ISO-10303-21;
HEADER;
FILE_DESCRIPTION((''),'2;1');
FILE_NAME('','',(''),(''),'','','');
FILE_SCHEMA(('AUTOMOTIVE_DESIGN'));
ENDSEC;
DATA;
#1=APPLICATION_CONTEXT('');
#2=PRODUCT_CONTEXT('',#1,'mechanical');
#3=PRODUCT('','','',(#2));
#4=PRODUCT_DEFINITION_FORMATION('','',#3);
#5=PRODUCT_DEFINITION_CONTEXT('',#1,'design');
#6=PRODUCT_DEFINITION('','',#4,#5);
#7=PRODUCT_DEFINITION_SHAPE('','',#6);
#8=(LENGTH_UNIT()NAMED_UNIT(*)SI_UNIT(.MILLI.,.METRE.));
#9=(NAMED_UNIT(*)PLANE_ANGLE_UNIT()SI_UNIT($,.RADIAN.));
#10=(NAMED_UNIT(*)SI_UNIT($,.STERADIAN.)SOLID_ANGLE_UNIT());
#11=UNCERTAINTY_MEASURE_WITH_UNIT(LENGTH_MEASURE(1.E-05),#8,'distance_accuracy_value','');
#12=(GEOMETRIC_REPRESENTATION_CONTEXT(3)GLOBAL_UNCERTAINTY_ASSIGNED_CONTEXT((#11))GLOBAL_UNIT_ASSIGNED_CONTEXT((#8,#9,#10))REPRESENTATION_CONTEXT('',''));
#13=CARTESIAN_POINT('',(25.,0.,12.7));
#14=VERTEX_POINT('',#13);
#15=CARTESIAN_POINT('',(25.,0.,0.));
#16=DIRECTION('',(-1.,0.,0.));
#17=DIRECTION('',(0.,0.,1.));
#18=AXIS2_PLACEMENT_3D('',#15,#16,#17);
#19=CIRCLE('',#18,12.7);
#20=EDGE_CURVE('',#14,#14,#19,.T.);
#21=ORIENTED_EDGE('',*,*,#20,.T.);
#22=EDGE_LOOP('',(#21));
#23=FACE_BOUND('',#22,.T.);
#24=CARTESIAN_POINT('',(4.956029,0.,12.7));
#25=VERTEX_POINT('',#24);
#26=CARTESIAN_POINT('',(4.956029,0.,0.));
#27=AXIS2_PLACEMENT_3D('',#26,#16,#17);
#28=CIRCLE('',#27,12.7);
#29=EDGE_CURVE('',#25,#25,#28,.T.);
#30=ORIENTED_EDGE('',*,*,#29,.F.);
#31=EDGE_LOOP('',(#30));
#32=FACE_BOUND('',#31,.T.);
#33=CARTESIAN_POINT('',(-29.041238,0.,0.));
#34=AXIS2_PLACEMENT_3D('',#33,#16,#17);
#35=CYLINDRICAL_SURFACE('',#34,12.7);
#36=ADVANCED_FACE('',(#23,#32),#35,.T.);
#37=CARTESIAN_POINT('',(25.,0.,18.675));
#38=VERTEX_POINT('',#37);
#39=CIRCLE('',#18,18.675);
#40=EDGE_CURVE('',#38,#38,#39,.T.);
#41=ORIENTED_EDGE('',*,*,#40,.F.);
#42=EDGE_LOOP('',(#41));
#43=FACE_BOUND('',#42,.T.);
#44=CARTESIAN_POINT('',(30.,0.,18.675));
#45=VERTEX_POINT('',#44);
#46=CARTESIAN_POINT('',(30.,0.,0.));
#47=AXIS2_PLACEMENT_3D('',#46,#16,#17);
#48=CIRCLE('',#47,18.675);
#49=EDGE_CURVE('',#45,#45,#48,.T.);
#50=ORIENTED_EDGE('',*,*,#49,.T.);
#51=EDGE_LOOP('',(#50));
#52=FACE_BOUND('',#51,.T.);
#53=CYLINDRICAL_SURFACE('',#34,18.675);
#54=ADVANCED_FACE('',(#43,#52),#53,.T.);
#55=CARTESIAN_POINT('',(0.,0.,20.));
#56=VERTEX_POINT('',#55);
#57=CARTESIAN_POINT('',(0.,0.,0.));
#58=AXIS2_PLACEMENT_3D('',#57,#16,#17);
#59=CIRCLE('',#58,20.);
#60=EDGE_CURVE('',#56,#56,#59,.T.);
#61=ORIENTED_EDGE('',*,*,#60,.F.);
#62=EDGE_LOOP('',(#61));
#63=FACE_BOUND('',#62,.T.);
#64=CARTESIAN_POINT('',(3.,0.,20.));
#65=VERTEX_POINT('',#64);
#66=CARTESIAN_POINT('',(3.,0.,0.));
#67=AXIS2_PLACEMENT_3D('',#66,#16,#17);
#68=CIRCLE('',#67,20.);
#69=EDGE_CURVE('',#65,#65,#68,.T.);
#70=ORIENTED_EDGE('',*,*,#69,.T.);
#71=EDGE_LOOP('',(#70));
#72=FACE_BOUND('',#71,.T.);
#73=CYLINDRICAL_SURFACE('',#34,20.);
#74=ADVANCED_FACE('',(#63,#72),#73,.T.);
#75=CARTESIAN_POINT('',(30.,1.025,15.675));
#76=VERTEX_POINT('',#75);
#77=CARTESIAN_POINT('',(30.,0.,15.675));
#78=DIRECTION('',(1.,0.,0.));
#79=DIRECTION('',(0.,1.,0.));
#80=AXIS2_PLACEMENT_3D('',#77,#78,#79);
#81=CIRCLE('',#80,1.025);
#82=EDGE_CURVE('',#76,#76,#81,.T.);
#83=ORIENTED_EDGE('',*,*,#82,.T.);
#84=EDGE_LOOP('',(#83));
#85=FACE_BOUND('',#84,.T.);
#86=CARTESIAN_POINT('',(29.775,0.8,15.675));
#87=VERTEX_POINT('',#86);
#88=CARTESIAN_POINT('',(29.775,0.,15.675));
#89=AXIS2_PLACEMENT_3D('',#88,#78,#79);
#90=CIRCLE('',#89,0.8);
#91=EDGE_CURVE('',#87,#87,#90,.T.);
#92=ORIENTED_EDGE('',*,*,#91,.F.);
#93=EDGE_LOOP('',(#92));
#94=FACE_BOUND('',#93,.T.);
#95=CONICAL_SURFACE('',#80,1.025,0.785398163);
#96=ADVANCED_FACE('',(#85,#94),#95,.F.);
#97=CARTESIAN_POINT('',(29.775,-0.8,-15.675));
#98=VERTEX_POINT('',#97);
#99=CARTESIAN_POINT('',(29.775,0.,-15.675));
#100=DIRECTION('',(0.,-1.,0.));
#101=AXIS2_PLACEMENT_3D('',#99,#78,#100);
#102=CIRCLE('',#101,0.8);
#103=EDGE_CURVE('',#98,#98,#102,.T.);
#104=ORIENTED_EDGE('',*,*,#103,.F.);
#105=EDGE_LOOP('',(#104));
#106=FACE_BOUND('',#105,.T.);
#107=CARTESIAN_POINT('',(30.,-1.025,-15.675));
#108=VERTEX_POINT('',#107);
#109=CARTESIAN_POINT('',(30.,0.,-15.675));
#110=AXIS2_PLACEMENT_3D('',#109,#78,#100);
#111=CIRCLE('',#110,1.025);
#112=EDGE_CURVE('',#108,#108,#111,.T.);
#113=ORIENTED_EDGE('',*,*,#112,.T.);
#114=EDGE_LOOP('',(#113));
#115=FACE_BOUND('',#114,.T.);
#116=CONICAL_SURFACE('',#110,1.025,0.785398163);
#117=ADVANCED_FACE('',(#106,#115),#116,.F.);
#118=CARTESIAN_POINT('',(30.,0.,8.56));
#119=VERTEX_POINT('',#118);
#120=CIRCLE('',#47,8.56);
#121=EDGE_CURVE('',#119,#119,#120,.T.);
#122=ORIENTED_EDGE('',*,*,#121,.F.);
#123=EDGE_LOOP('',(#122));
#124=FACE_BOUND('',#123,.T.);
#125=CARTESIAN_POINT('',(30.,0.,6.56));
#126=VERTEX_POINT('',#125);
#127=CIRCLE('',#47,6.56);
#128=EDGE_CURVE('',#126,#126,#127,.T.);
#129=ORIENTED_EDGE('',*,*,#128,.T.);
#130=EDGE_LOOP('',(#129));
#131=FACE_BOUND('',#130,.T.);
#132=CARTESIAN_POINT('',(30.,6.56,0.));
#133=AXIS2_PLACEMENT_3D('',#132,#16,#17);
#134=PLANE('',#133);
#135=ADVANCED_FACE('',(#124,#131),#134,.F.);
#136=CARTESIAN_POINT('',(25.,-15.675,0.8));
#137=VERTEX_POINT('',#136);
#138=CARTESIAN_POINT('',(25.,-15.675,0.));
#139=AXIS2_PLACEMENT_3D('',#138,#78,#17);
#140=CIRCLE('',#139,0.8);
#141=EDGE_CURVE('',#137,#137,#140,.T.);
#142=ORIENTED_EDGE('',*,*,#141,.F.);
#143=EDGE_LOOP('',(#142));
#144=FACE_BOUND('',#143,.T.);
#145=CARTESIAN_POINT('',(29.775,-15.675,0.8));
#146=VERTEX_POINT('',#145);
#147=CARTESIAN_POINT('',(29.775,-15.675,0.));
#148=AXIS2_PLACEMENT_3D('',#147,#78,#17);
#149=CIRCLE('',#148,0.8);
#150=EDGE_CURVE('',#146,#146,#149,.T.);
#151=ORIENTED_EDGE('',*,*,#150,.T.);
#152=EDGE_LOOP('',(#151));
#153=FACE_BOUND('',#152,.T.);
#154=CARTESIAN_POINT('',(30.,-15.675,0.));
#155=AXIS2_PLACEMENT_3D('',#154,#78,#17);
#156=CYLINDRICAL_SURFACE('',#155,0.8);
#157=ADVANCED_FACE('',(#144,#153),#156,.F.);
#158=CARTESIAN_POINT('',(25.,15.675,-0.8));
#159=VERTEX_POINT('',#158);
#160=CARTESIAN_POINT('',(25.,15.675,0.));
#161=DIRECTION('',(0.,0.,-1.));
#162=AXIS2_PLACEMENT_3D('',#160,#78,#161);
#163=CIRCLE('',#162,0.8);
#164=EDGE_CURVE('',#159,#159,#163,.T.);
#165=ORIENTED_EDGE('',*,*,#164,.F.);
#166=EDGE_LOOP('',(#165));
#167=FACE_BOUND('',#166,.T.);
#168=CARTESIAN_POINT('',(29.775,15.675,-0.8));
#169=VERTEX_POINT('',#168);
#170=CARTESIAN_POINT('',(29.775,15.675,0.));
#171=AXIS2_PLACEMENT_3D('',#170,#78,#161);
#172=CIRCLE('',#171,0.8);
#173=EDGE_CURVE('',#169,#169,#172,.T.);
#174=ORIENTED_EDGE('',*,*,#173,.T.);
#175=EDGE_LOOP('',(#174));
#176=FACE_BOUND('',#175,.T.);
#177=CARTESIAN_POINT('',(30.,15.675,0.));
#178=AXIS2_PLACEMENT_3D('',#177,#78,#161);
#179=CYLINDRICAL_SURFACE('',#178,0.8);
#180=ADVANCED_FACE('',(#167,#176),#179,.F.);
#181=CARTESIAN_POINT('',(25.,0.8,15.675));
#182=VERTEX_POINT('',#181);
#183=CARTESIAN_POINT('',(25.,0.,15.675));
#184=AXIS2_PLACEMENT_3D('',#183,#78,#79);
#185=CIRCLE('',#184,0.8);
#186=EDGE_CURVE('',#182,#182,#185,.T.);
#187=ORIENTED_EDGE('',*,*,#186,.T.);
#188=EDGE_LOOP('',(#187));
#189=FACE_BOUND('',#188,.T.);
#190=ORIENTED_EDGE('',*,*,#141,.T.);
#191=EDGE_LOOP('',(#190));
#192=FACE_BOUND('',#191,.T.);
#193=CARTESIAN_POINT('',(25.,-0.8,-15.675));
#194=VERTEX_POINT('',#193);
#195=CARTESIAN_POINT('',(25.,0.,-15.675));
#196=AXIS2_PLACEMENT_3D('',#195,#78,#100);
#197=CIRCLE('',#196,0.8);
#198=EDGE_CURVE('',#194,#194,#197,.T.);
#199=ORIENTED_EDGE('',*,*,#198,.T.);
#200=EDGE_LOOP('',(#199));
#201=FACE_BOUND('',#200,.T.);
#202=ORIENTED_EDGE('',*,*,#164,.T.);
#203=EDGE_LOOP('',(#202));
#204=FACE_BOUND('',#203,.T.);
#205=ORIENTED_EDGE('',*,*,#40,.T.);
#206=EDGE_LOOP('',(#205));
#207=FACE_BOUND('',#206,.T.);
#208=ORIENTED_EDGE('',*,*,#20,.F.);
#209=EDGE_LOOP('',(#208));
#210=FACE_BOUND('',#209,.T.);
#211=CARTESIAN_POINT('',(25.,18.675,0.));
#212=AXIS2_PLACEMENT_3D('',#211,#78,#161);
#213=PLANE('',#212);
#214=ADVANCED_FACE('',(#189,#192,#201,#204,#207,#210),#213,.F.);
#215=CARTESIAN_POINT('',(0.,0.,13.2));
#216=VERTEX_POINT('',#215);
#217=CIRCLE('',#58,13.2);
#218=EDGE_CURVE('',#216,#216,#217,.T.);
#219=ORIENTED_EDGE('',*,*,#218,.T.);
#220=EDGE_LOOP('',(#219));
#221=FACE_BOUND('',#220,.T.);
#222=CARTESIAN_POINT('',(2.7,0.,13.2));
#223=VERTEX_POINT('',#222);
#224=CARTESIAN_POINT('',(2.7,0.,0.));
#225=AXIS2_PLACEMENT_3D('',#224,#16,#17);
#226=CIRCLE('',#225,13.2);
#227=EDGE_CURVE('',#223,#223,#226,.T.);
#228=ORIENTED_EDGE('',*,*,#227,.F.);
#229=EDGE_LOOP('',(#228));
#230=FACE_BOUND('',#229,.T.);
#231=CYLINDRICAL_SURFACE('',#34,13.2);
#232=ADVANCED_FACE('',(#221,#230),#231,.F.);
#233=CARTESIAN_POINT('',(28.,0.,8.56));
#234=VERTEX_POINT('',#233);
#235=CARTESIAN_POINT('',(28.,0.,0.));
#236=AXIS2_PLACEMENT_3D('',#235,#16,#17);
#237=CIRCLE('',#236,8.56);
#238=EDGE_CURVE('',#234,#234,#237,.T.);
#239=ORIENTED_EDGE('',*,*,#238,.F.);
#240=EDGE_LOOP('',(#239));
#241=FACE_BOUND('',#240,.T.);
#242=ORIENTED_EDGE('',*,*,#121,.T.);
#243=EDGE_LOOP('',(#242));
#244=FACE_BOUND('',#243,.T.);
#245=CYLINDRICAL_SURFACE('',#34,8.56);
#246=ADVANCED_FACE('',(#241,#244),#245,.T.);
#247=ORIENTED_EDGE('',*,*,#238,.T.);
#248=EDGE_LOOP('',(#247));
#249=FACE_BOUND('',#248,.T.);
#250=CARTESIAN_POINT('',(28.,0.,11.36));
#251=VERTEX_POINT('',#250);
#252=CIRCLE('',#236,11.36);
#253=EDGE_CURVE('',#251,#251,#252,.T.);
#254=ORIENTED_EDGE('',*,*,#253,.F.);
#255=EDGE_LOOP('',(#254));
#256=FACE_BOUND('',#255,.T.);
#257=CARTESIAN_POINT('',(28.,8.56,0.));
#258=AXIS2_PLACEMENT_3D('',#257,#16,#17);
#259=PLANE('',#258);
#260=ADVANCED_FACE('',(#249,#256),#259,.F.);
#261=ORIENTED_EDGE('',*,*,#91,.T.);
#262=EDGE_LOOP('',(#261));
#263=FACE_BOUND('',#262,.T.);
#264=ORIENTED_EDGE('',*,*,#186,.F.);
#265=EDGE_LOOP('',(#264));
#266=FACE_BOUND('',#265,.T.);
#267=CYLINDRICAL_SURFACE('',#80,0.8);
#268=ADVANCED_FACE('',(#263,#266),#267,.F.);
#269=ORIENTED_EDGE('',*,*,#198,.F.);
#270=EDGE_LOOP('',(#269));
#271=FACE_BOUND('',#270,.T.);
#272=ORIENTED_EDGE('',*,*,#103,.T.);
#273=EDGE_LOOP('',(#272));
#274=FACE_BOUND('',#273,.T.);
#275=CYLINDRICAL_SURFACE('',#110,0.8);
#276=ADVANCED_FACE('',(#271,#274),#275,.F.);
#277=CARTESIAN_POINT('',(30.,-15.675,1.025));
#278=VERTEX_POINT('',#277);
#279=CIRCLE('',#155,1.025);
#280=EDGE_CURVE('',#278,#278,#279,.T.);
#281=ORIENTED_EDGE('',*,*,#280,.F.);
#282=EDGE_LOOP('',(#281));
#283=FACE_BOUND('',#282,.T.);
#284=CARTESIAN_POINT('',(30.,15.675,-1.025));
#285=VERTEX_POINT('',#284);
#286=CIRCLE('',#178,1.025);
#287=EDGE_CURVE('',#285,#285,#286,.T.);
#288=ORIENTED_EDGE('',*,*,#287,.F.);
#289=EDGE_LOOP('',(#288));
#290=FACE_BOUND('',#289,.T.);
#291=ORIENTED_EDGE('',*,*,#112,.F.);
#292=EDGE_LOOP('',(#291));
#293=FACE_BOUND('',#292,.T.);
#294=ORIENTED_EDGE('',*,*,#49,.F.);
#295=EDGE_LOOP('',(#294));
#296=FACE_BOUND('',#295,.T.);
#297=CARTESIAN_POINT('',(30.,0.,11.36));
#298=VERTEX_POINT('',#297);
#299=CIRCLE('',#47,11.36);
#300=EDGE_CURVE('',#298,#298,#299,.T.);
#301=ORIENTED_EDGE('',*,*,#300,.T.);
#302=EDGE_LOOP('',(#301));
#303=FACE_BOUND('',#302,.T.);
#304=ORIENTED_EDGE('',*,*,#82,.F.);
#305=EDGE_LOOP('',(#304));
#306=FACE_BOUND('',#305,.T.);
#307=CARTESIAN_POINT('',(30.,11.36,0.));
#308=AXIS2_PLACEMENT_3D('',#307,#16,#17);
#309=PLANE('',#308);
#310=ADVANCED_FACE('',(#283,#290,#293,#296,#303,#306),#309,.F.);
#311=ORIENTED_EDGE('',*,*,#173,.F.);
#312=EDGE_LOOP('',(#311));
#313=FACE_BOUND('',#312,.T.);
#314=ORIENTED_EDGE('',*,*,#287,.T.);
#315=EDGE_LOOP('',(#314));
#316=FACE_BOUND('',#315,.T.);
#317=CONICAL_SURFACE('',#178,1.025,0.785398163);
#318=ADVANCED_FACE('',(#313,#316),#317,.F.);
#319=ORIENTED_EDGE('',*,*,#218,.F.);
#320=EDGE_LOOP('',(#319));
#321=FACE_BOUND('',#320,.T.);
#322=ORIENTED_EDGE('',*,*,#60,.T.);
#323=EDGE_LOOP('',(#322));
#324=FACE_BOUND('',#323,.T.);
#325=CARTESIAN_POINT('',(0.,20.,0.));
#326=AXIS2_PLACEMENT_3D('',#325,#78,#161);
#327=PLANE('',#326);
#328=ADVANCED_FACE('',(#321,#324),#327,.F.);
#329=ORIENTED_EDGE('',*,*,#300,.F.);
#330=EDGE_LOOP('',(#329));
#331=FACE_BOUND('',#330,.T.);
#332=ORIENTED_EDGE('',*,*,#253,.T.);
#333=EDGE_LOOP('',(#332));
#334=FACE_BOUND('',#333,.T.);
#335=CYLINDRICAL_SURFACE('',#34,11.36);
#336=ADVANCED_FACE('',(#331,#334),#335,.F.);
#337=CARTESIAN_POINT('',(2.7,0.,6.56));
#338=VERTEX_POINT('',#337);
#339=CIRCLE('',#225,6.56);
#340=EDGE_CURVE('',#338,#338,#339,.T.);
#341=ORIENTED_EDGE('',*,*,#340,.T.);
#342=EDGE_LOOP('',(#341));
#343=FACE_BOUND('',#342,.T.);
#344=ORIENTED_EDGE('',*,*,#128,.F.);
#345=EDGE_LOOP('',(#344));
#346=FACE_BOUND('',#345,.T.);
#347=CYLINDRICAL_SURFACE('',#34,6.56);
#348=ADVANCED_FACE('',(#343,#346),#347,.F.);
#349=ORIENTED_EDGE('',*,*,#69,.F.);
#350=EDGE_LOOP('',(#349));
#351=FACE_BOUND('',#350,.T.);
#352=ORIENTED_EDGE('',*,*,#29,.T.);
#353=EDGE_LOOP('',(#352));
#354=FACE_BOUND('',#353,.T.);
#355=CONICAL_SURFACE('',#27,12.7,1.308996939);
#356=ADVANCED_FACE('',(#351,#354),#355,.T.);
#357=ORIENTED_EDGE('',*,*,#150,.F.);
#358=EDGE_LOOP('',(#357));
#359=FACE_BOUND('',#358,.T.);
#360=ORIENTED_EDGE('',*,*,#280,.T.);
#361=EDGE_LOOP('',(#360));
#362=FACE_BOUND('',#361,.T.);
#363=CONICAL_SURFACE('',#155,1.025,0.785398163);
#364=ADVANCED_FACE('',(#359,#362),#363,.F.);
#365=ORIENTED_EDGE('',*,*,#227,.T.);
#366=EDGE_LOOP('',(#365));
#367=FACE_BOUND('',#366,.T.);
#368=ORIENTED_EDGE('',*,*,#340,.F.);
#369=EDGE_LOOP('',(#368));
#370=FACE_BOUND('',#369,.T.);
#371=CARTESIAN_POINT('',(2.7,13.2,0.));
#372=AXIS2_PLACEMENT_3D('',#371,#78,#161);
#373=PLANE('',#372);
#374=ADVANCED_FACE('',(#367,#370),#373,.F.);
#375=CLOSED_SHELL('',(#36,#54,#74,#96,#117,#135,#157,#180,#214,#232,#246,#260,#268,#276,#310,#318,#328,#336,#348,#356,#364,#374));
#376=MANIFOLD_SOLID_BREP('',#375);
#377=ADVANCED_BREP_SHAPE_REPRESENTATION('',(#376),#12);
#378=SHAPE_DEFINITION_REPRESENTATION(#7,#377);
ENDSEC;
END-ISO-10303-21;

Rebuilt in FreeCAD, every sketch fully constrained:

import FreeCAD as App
import Part
import Sketcher

V = App.Vector
Q = App.Units.Quantity


def add_polygon(sketch, points):
    """Adds a closed chain of lines whose ends are joined by coincident constraints."""
    first, n = sketch.GeometryCount, len(points)
    for a, b in zip(points, points[1:] + points[:1]):
        sketch.addGeometry(Part.LineSegment(App.Vector(*a, 0), App.Vector(*b, 0)), False)
    for i in range(n):
        sketch.addConstraint(Sketcher.Constraint("Coincident", first + i, 2, first + (i + 1) % n, 1))

doc = App.newDocument("Part")
body = doc.addObject("PartDesign::Body", "Body")

# Sketch on XY plane
sketch1 = doc.addObject("Sketcher::SketchObject", "Sketch")
body.addObject(sketch1)
sketch1.AttachmentSupport = (doc.XY_Plane, [""])
sketch1.MapMode = "FlatFace"
add_polygon(sketch1, [(0, 20), (0, 13.2), (2.7, 13.2), (2.7, 6.6), (30, 6.6), (30, 8.6), (28, 8.6), (28, 11.4), (30, 11.4), (30, 18.7), (25, 18.7), (25, 12.7), (5, 12.7), (3, 20)])  # lines 0-13
sketch1.addConstraint(Sketcher.Constraint("Vertical", 0))
sketch1.addConstraint(Sketcher.Constraint("Horizontal", 1))
sketch1.addConstraint(Sketcher.Constraint("Vertical", 2))
sketch1.addConstraint(Sketcher.Constraint("Horizontal", 3))
sketch1.addConstraint(Sketcher.Constraint("Vertical", 4))
sketch1.addConstraint(Sketcher.Constraint("Horizontal", 5))
sketch1.addConstraint(Sketcher.Constraint("Vertical", 6))
sketch1.addConstraint(Sketcher.Constraint("Horizontal", 7))
sketch1.addConstraint(Sketcher.Constraint("Vertical", 8))
sketch1.addConstraint(Sketcher.Constraint("Horizontal", 9))
sketch1.addConstraint(Sketcher.Constraint("Vertical", 10))
sketch1.addConstraint(Sketcher.Constraint("Horizontal", 11))
sketch1.addConstraint(Sketcher.Constraint("Horizontal", 13))
sketch1.addConstraint(Sketcher.Constraint("PointOnObject", 0, 2, -2))
sketch1.addConstraint(Sketcher.Constraint("Vertical", 4, 2, 7, 2))
sketch1.addConstraint(Sketcher.Constraint("Equal", 7, 4))
sketch1.addConstraint(Sketcher.Constraint("DistanceX", 5, 2, 5, 1, Q("2 mm")))
sketch1.addConstraint(Sketcher.Constraint("DistanceX", 9, 2, 9, 1, Q("5 mm")))
sketch1.addConstraint(Sketcher.Constraint("DistanceX", 13, 2, 13, 1, Q("3 mm")))
sketch1.addConstraint(Sketcher.Constraint("Angle", 12, Q("105 deg")))
sketch1.addConstraint(Sketcher.Constraint("DistanceX", 1, 1, 1, 2, Q("2.7 mm")))
sketch1.addConstraint(Sketcher.Constraint("DistanceX", 3, 1, 3, 2, Q("27.3 mm")))
sketch1.addConstraint(Sketcher.Constraint("DistanceY", 0, 2, 0, 1, Q("6.8 mm")))
sketch1.addConstraint(Sketcher.Constraint("DistanceY", 6, 1, 6, 2, Q("2.8 mm")))
sketch1.addConstraint(Sketcher.Constraint("DistanceY", -1, 1, 12, 2, Q("20 mm")))
sketch1.addConstraint(Sketcher.Constraint("DistanceY", 2, 2, 2, 1, Q("6.64 mm")))
sketch1.addConstraint(Sketcher.Constraint("DistanceY", -1, 1, 10, 2, Q("12.7 mm")))
sketch1.addConstraint(Sketcher.Constraint("DistanceY", 8, 1, 8, 2, Q("7.315 mm")))
revolution = doc.addObject("PartDesign::Revolution", "Revolution")
body.addObject(revolution)
revolution.Profile = sketch1
revolution.ReferenceAxis = (sketch1, ["H_Axis"])
revolution.Angle = 360

# Sketch on YZ plane
sketch2 = doc.addObject("Sketcher::SketchObject", "Sketch001")
body.addObject(sketch2)
sketch2.AttachmentSupport = (doc.YZ_Plane, [""])
sketch2.MapMode = "FlatFace"
sketch2.AttachmentOffset = App.Placement(V(0, 0, 30), App.Rotation())
sketch2.addGeometry(Part.Circle(V(15.7, 0, 0), V(0, 0, 1), 0.8), False)
sketch2.addConstraint(Sketcher.Constraint("PointOnObject", 0, 3, -1))
sketch2.addConstraint(Sketcher.Constraint("Diameter", 0, Q("1.6 mm")))
sketch2.addConstraint(Sketcher.Constraint("DistanceX", -1, 1, 0, 3, Q("15.675 mm")))
doc.recompute()
hole = doc.addObject("PartDesign::Hole", "Hole")
body.addObject(hole)
hole.Profile = sketch2
hole.ThreadType = "None"
hole.Diameter = 1.6
hole.DepthType = "Dimension"
hole.Depth = 5
hole.DrillPoint = "Flat"
hole.HoleCutType = "Countersink"
hole.HoleCutDiameter = 2.05
hole.HoleCutCountersinkAngle = 90
doc.recompute()

polarpattern = doc.addObject("PartDesign::PolarPattern", "PolarPattern")
body.addObject(polarpattern)
polarpattern.Originals = [hole]
polarpattern.Axis = (doc.X_Axis, [""])
polarpattern.Angle = 360
polarpattern.Occurrences = 4
body.Tip = polarpattern

doc.recompute()
